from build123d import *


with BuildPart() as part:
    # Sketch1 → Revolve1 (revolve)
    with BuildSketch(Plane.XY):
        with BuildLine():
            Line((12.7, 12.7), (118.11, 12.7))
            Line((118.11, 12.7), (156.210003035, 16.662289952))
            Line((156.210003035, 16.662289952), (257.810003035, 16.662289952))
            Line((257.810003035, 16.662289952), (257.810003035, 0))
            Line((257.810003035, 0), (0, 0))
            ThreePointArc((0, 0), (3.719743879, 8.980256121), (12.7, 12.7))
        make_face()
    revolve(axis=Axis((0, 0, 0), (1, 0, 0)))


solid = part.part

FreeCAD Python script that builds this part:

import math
import FreeCAD as App
import Part
import Sketcher

V = App.Vector
Q = App.Units.Quantity

doc = App.newDocument("Part")
body = doc.addObject("PartDesign::Body", "Body")

sketch1 = body.newObject("Sketcher::SketchObject", "Sketch")
sketch1.AttachmentSupport = (doc.getObject("XY_Plane"), [""])
sketch1.MapMode = "FlatFace"
sketch1.addGeometry([
    Part.LineSegment(V(118, 13, 0), V(13, 13, 0)),
    Part.ArcOfCircle(Part.Circle(V(13, 0, 0), V(0, 0, 1), 13), math.radians(90), math.radians(180)),
    Part.LineSegment(V(0, 0, 0), V(258, 0, 0)),
    Part.LineSegment(V(258, 0, 0), V(258, 17, 0)),
    Part.LineSegment(V(258, 17, 0), V(156, 17, 0)),
    Part.LineSegment(V(156, 17, 0), V(118, 13, 0)),
], False)
sketch1.addConstraint([
    Sketcher.Constraint("Tangent", 0, 2, 1, 1),
    Sketcher.Constraint("Coincident", 1, 2, 2, 1),
    Sketcher.Constraint("Coincident", 2, 2, 3, 1),
    Sketcher.Constraint("Coincident", 3, 2, 4, 1),
    Sketcher.Constraint("Coincident", 4, 2, 5, 1),
    Sketcher.Constraint("Coincident", 5, 2, 0, 1),
    Sketcher.Constraint("Horizontal", 0),
    Sketcher.Constraint("Horizontal", 2),
    Sketcher.Constraint("Vertical", 3),
    Sketcher.Constraint("Horizontal", 4),
    Sketcher.Constraint("Coincident", 1, 2, -1, 1),
    Sketcher.Constraint("PointOnObject", 1, 3, -1),
    Sketcher.Constraint("Radius", 1, Q("0.5 in")),
    Sketcher.Constraint("DistanceX", 4, 2, 4, 1, Q("4 in")),
    Sketcher.Constraint("DistanceX", 0, 2, 0, 1, Q("4.15 in")),
    Sketcher.Constraint("DistanceX", 2, 1, 2, 2, Q("10.1500001 in")),
    Sketcher.Constraint("DistanceY", 3, 1, 3, 2, Q("16.66229 mm")),
])
revolution = body.newObject("PartDesign::Revolution", "Revolution")
revolution.Profile = sketch1
revolution.ReferenceAxis = (sketch1, ["H_Axis"])
revolution.Angle = 360

doc.recompute()
